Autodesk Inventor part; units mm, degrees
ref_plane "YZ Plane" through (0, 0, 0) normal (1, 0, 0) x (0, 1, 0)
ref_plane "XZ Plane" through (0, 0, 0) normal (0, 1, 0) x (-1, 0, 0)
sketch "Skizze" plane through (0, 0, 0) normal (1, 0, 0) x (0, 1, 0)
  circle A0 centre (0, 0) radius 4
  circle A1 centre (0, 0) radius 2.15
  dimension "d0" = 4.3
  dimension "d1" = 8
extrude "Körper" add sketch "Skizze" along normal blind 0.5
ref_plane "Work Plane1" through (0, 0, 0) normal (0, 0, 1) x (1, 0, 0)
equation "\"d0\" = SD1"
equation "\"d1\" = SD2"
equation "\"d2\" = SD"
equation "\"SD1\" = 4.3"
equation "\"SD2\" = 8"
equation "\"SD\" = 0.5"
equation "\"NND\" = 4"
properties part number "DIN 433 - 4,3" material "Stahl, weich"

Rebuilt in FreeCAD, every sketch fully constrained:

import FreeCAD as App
import Part
import Sketcher

doc = App.newDocument("Part")
params = doc.addObject("Spreadsheet::Sheet", "Params")
for row, (alias, value) in enumerate([
    ("sketch1_diameter", "8 mm"),
    ("sketch1_diameter2", "4.3 mm"),
    ("pad1_length", "0.5 mm"),
], start=1):
    params.set(f"A{row}", alias)
    params.set(f"B{row}", "=" + value)
    params.setAlias(f"B{row}", alias)

body = doc.addObject("PartDesign::Body", "Body")

# Sketch on YZ plane
sketch1 = doc.addObject("Sketcher::SketchObject", "Sketch")
body.addObject(sketch1)
sketch1.AttachmentSupport = (doc.YZ_Plane, [""])
sketch1.MapMode = "FlatFace"
sketch1.addGeometry([
    Part.Circle(App.Vector(0, 0, 0), App.Vector(0, 0, 1), 4),
    Part.Circle(App.Vector(0, 0, 0), App.Vector(0, 0, 1), 2.1),
], False)
sketch1.addConstraint([
    Sketcher.Constraint("Coincident", 0, 3, -1, 1),
    Sketcher.Constraint("Coincident", 1, 3, -1, 1),
    Sketcher.Constraint("Diameter", 0, 8.0),
    Sketcher.Constraint("Diameter", 1, 4.3),
])
sketch1.setExpression("Constraints[2]", "Params.sketch1_diameter")
sketch1.setExpression("Constraints[3]", "Params.sketch1_diameter2")
pad1 = doc.addObject("PartDesign::Pad", "Pad")
body.addObject(pad1)
pad1.Profile = sketch1
pad1.setExpression("Length", "Params.pad1_length")

doc.recompute()
